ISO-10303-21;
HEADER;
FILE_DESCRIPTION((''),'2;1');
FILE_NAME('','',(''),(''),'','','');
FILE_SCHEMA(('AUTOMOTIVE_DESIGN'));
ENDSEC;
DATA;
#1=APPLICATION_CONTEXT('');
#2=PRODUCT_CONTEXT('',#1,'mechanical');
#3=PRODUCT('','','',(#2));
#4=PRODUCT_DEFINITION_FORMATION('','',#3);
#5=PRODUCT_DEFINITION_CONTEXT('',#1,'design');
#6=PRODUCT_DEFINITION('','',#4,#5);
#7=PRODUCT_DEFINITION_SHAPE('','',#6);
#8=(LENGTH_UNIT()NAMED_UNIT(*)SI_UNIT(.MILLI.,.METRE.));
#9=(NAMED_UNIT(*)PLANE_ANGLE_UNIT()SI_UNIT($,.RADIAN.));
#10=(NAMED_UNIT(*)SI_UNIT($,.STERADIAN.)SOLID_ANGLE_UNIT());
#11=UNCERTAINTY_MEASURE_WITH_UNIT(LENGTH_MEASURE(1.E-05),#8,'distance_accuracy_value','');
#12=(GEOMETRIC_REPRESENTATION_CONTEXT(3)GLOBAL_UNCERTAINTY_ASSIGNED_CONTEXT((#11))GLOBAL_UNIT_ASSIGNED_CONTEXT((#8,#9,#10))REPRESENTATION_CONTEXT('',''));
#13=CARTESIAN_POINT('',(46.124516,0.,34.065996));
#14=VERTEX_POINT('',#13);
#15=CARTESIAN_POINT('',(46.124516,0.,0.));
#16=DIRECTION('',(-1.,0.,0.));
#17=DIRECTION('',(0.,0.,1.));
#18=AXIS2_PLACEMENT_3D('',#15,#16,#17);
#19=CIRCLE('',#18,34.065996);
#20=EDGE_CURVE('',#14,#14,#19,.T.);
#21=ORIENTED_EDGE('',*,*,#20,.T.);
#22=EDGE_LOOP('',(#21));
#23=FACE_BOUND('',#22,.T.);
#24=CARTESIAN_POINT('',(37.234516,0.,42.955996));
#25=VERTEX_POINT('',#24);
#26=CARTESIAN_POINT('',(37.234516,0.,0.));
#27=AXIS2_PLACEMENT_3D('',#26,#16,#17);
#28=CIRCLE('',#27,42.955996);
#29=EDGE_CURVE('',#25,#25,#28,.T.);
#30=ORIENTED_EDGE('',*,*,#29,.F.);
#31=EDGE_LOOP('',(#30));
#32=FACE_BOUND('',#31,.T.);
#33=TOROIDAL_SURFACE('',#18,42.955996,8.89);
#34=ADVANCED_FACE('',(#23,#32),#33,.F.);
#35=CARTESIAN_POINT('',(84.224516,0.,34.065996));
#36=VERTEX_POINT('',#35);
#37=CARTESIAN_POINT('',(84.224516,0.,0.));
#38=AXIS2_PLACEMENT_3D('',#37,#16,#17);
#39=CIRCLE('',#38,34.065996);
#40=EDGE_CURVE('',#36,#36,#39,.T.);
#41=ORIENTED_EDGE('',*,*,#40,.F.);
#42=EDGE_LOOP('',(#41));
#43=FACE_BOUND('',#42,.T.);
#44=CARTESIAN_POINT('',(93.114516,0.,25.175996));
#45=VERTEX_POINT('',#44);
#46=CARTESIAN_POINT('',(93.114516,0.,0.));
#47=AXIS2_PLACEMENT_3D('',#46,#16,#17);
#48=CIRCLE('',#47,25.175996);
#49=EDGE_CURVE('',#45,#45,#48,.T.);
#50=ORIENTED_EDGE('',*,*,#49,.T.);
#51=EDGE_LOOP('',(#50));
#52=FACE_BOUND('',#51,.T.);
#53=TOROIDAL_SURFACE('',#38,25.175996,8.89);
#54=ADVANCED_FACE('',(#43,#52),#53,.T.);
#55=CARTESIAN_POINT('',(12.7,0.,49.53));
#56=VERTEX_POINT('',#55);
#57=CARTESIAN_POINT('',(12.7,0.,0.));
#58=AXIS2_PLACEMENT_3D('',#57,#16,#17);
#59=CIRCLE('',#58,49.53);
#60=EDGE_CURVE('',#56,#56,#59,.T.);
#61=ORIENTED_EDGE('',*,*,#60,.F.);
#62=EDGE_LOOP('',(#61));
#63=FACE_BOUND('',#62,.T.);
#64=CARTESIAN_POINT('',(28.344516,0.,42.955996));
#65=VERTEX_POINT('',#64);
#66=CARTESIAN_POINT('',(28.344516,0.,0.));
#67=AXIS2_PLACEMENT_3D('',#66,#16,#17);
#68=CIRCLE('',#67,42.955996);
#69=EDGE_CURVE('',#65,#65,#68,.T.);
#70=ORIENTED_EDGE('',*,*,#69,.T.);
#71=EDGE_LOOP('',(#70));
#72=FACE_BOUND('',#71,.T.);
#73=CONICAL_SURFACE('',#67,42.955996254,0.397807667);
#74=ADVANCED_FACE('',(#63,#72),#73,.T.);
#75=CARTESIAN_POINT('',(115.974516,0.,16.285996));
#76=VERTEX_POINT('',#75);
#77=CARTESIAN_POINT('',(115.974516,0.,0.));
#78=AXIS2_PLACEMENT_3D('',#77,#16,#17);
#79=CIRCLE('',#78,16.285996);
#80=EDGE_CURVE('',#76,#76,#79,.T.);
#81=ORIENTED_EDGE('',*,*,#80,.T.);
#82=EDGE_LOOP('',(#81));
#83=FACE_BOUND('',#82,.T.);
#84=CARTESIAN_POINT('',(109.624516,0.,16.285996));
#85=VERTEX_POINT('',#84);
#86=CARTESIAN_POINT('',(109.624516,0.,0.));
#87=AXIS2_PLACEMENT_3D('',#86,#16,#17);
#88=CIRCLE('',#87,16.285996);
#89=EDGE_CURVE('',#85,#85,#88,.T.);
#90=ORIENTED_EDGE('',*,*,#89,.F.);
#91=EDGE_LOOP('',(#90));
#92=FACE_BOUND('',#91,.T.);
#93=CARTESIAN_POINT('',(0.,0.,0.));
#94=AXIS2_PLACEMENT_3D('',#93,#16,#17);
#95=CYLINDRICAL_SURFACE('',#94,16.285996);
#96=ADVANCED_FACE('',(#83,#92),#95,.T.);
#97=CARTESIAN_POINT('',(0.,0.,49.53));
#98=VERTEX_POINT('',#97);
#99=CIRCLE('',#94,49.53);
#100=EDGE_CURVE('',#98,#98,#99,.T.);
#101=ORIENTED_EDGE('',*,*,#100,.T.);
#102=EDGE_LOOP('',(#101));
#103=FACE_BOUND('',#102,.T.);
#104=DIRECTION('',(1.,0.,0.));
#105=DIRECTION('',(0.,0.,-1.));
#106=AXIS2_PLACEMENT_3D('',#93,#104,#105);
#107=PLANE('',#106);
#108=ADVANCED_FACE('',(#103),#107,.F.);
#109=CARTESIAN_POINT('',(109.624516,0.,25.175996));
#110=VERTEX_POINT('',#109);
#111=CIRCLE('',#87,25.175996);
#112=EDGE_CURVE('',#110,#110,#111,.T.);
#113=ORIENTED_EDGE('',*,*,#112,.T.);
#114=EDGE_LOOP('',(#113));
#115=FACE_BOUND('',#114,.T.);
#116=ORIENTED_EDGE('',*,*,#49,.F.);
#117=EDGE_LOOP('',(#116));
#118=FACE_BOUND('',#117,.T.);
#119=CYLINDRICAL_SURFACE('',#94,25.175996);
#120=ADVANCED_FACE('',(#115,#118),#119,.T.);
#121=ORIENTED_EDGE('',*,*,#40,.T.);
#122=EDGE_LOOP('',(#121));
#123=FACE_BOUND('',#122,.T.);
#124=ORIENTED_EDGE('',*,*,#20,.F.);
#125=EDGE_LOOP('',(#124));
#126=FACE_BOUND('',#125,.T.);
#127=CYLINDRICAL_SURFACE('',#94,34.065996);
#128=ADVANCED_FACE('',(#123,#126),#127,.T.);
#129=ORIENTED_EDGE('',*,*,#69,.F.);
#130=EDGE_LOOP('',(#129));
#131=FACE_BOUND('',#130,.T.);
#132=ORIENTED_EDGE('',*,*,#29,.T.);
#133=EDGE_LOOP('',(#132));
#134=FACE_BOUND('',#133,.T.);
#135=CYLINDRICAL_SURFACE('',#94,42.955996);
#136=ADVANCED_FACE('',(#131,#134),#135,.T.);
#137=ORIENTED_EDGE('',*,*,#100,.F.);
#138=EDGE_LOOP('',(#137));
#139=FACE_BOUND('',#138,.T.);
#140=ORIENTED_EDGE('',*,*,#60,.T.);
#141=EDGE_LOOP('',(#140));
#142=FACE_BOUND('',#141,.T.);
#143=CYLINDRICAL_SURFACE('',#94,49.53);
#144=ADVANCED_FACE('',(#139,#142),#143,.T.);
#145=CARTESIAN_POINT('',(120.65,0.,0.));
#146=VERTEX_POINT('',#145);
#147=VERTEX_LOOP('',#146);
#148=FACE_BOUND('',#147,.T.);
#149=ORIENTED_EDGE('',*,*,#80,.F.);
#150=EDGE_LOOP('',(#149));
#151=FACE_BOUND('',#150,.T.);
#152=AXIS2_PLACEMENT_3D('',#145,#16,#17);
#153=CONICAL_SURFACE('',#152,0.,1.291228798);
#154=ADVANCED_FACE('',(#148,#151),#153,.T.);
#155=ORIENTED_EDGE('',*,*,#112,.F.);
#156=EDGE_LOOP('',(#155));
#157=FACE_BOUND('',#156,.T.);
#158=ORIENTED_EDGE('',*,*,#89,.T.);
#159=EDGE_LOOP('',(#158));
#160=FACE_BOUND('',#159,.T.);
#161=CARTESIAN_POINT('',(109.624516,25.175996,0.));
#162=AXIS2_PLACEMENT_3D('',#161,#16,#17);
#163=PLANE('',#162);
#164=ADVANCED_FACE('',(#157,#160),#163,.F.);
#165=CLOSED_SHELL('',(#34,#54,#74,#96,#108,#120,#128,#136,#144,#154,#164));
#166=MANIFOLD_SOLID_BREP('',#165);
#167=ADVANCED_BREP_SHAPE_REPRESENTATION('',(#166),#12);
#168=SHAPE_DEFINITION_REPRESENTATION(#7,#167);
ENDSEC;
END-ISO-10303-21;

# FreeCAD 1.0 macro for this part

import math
import FreeCAD as App
import Part
import Sketcher

V = App.Vector
Q = App.Units.Quantity

doc = App.newDocument("Part")
body = doc.addObject("PartDesign::Body", "Body")

# Sketch on XY plane
sketch1 = doc.addObject("Sketcher::SketchObject", "Sketch")
body.addObject(sketch1)
sketch1.AttachmentSupport = (doc.XY_Plane, [""])
sketch1.MapMode = "FlatFace"
sketch1.addGeometry([
    Part.LineSegment(V(0, 0, 0), V(121, 0, 0)),  # 0
    Part.LineSegment(V(121, 0, 0), V(116, 16, 0)),  # 1
    Part.LineSegment(V(116, 16, 0), V(110, 16, 0)),  # 2
    Part.LineSegment(V(110, 16, 0), V(110, 25, 0)),  # 3
    Part.LineSegment(V(110, 25, 0), V(93, 25, 0)),  # 4
    Part.ArcOfCircle(Part.Circle(V(84, 25, 0), V(0, 0, 1), 9), math.radians(0), math.radians(90)),  # 5
    Part.LineSegment(V(84, 34, 0), V(46, 34, 0)),  # 6
    Part.ArcOfCircle(Part.Circle(V(46, 43, 0), V(0, 0, 1), 9), math.radians(-180), math.radians(-90)),  # 7
    Part.LineSegment(V(37, 43, 0), V(28, 43, 0)),  # 8
    Part.LineSegment(V(28, 43, 0), V(13, 50, 0)),  # 9
    Part.LineSegment(V(13, 50, 0), V(0, 50, 0)),  # 10
    Part.LineSegment(V(0, 50, 0), V(0, 0, 0)),  # 11
], False)
sketch1.addConstraint([
    Sketcher.Constraint("Coincident", 0, 2, 1, 1),
    Sketcher.Constraint("Coincident", 1, 2, 2, 1),
    Sketcher.Constraint("Coincident", 2, 2, 3, 1),
    Sketcher.Constraint("Coincident", 3, 2, 4, 1),
    Sketcher.Constraint("Coincident", 4, 2, 5, 1),
    Sketcher.Constraint("Tangent", 5, 2, 6, 1),
    Sketcher.Constraint("Tangent", 6, 2, 7, 2),
    Sketcher.Constraint("Coincident", 7, 1, 8, 1),
    Sketcher.Constraint("Coincident", 8, 2, 9, 1),
    Sketcher.Constraint("Coincident", 9, 2, 10, 1),
    Sketcher.Constraint("Coincident", 10, 2, 11, 1),
    Sketcher.Constraint("Coincident", 11, 2, 0, 1),
    Sketcher.Constraint("Horizontal", 0),
    Sketcher.Constraint("Horizontal", 2),
    Sketcher.Constraint("Vertical", 3),
    Sketcher.Constraint("Horizontal", 4),
    Sketcher.Constraint("Horizontal", 6),
    Sketcher.Constraint("Horizontal", 8),
    Sketcher.Constraint("Horizontal", 10),
    Sketcher.Constraint("Vertical", 11),
    Sketcher.Constraint("Coincident", 11, 2, -1, 1),
    Sketcher.Constraint("Equal", 5, 7),
    Sketcher.Constraint("Horizontal", 5, 3, 3, 2),
    Sketcher.Constraint("Equal", 8, 3),
    Sketcher.Constraint("Radius", 5, Q("0.35 in")),
    Sketcher.Constraint("DistanceX", 6, 2, 6, 1, Q("1.5 in")),
    Sketcher.Constraint("DistanceX", 10, 2, 10, 1, Q("0.5 in")),
    Sketcher.Constraint("DistanceX", 5, 3, 2, 2, Q("1 in")),
    Sketcher.Constraint("DistanceX", 0, 1, 0, 2, Q("4.75 in")),
    Sketcher.Constraint("DistanceX", 2, 2, 2, 1, Q("0.25 in")),
    Sketcher.Constraint("DistanceX", 8, 2, 8, 1, Q("0.35 in")),
    Sketcher.Constraint("DistanceY", 11, 2, 11, 1, Q("1.95 in")),
    Sketcher.Constraint("DistanceY", 5, 3, 7, 1, Q("0.7 in")),
    Sketcher.Constraint("Distance", 9, 16.969632),
    Sketcher.Constraint("Distance", 1, 16.943843),
])
revolution = doc.addObject("PartDesign::Revolution", "Revolution")
body.addObject(revolution)
revolution.Profile = sketch1
revolution.ReferenceAxis = (sketch1, ["H_Axis"])
revolution.Angle = 360

doc.recompute()
